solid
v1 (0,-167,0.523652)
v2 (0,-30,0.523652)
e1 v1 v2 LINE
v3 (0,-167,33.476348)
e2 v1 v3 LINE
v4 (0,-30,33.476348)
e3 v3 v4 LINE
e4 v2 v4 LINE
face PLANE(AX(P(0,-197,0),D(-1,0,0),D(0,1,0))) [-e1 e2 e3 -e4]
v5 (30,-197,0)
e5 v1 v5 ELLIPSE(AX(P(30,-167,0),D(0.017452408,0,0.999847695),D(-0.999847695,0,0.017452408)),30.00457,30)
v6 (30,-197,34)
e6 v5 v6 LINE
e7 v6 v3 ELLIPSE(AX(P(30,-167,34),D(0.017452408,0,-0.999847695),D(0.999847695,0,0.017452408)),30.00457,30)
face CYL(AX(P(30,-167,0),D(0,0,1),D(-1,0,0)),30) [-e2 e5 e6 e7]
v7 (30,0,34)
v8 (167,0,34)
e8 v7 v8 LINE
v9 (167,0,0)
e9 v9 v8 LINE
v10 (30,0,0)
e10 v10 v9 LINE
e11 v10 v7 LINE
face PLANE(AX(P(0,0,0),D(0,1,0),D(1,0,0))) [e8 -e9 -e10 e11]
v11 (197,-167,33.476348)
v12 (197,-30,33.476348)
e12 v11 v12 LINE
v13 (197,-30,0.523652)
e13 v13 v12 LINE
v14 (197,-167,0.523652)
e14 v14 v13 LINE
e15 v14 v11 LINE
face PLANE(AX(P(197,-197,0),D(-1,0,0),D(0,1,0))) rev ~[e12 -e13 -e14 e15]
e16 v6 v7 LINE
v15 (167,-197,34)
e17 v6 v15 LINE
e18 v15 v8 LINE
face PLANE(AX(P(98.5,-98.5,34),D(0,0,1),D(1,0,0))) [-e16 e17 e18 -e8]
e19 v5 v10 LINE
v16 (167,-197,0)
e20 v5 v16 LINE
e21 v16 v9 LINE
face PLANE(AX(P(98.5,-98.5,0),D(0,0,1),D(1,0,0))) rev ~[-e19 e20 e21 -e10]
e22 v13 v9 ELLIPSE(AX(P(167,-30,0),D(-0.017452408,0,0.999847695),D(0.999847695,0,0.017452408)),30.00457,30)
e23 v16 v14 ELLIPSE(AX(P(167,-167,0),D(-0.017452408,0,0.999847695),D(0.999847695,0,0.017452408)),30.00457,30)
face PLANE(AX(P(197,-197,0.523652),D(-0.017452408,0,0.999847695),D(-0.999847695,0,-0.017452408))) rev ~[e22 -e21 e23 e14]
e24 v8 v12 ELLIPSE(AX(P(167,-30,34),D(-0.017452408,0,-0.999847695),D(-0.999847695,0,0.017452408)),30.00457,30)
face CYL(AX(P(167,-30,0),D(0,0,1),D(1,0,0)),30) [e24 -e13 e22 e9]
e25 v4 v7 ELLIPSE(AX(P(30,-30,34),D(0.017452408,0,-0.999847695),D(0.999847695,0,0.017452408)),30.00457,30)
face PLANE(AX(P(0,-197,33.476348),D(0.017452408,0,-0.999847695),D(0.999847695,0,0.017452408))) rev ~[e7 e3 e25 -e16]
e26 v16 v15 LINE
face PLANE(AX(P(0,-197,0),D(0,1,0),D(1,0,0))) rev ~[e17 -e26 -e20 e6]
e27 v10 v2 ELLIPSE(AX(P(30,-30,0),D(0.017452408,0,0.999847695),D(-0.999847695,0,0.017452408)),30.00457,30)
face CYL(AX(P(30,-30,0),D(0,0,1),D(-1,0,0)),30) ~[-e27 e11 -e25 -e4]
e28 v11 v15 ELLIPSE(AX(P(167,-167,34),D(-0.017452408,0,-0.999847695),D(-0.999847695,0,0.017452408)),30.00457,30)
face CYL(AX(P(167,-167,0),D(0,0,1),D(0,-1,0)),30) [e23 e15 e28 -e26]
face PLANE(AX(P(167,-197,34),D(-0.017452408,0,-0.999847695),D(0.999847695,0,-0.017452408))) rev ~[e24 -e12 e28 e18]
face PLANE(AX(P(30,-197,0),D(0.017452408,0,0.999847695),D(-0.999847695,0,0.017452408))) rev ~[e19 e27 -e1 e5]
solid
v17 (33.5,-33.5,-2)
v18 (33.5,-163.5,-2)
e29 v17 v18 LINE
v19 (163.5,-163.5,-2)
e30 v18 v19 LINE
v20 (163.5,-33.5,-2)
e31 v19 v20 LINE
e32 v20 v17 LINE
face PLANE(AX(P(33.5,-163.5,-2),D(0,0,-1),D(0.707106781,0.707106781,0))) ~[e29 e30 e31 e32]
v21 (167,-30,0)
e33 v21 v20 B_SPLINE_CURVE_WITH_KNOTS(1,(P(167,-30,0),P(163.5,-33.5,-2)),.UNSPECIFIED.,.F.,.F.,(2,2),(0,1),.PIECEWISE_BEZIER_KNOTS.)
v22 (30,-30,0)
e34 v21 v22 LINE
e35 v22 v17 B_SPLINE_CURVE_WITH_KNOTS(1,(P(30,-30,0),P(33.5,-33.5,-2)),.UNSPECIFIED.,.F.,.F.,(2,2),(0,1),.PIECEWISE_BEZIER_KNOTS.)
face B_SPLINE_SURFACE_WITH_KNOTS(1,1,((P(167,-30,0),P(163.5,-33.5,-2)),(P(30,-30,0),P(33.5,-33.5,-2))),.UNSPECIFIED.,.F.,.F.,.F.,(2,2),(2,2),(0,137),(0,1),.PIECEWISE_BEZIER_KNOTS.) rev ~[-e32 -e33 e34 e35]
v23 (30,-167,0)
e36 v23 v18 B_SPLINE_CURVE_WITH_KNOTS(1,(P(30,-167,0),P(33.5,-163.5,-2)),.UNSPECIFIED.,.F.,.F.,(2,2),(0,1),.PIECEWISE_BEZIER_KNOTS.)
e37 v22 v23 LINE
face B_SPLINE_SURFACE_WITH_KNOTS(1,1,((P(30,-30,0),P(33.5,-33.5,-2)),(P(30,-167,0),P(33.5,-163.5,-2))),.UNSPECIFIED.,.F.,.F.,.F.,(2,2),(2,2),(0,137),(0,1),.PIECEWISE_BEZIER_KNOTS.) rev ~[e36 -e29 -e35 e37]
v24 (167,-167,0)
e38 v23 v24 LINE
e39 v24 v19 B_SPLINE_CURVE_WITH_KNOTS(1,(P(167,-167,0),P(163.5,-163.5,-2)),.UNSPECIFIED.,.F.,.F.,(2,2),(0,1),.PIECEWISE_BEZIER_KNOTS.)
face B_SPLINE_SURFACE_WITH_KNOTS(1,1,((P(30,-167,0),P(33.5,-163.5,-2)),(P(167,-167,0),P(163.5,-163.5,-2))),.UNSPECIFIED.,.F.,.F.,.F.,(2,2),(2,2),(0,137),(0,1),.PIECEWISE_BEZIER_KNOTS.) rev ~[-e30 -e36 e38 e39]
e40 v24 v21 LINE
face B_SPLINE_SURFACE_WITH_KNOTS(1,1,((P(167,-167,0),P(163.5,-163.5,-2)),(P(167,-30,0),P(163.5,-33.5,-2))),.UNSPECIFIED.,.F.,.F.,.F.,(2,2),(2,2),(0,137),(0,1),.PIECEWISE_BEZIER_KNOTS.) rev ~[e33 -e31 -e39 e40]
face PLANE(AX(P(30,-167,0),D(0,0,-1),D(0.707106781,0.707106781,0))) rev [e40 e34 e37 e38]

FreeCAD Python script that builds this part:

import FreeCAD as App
import Part
import Sketcher
Q = App.Units.Quantity


def edges_at(feature, points):
    """Names of the edges that pass closest to the given points."""
    edges = feature.Shape.Edges
    near = lambda p: min(range(len(edges)), key=lambda i: edges[i].distToShape(Part.Vertex(*p))[0])
    return sorted({f"Edge{near(p) + 1}" for p in points})

doc = App.newDocument("Part")
body = doc.addObject("PartDesign::Body", "Body")

sketch1 = body.newObject("Sketcher::SketchObject", "Sketch")
sketch1.AttachmentSupport = (doc.getObject("XY_Plane"), [""])
sketch1.MapMode = "FlatFace"
sketch1.addGeometry(Part.LineSegment(App.Vector(0, 0, 0), App.Vector(0, -197, 0)), False)
sketch1.addGeometry(Part.LineSegment(App.Vector(0, -197, 0), App.Vector(197, -197, 0)), False)
sketch1.addGeometry(Part.LineSegment(App.Vector(197, -197, 0), App.Vector(197, 0, 0)), False)
sketch1.addGeometry(Part.LineSegment(App.Vector(197, 0, 0), App.Vector(0, 0, 0)), False)
sketch1.addConstraint(Sketcher.Constraint("Coincident", 0, 2, 1, 1))
sketch1.addConstraint(Sketcher.Constraint("Coincident", 1, 2, 2, 1))
sketch1.addConstraint(Sketcher.Constraint("Coincident", 2, 2, 3, 1))
sketch1.addConstraint(Sketcher.Constraint("Coincident", 3, 2, 0, 1))
sketch1.addConstraint(Sketcher.Constraint("Vertical", 0))
sketch1.addConstraint(Sketcher.Constraint("Horizontal", 1))
sketch1.addConstraint(Sketcher.Constraint("Vertical", 2))
sketch1.addConstraint(Sketcher.Constraint("Horizontal", 3))
sketch1.addConstraint(Sketcher.Constraint("Coincident", 3, 2, -1, 1))
sketch1.addConstraint(Sketcher.Constraint("Equal", 3, 0))
sketch1.addConstraint(Sketcher.Constraint("DistanceX", 1, 1, 1, 2, Q("197 mm")))
pad1 = body.newObject("PartDesign::Pad", "Pad")
pad1.Profile = sketch1
pad1.Length = 34
doc.recompute()

fillet = body.newObject("PartDesign::Fillet", "Fillet")
fillet.Base = (pad1, edges_at(pad1, [
    (197, -197, 17),
    (197, 0, 17),
    (0, 0, 17),
    (0, -197, 17),
]))
fillet.Radius = 30

sketch2 = body.newObject("Sketcher::SketchObject", "Sketch001")
sketch2.AttachmentSupport = (doc.getObject("XZ_Plane"), [""])
sketch2.MapMode = "FlatFace"
sketch2.AttachmentOffset = App.Placement(App.Vector(0, 0, 197), App.Rotation())
sketch2.addGeometry(Part.LineSegment(App.Vector(197, 34, 0), App.Vector(167, 34, 0)), False)
sketch2.addGeometry(Part.LineSegment(App.Vector(167, 34, 0), App.Vector(197, 33.5, 0)), False)
sketch2.addGeometry(Part.LineSegment(App.Vector(197, 33.5, 0), App.Vector(197, 34, 0)), False)
sketch2.addGeometry(Part.LineSegment(App.Vector(0, 0.5, 0), App.Vector(0, 0, 0)), False)
sketch2.addGeometry(Part.LineSegment(App.Vector(0, 0, 0), App.Vector(30, 0, 0)), False)
sketch2.addGeometry(Part.LineSegment(App.Vector(30, 0, 0), App.Vector(0, 0.5, 0)), False)
sketch2.addGeometry(Part.LineSegment(App.Vector(197, 0.5, 0), App.Vector(167, 0, 0)), False)
sketch2.addGeometry(Part.LineSegment(App.Vector(167, 0, 0), App.Vector(197, 0, 0)), False)
sketch2.addGeometry(Part.LineSegment(App.Vector(197, 0, 0), App.Vector(197, 0.5, 0)), False)
sketch2.addGeometry(Part.LineSegment(App.Vector(30, 34, 0), App.Vector(0, 34, 0)), False)
sketch2.addGeometry(Part.LineSegment(App.Vector(0, 34, 0), App.Vector(0, 33.5, 0)), False)
sketch2.addGeometry(Part.LineSegment(App.Vector(0, 33.5, 0), App.Vector(30, 34, 0)), False)
sketch2.addConstraint(Sketcher.Constraint("Coincident", 0, 2, 1, 1))
sketch2.addConstraint(Sketcher.Constraint("Coincident", 1, 2, 2, 1))
sketch2.addConstraint(Sketcher.Constraint("Coincident", 2, 2, 0, 1))
sketch2.addConstraint(Sketcher.Constraint("Coincident", 3, 2, 4, 1))
sketch2.addConstraint(Sketcher.Constraint("Coincident", 4, 2, 5, 1))
sketch2.addConstraint(Sketcher.Constraint("Coincident", 5, 2, 3, 1))
sketch2.addConstraint(Sketcher.Constraint("Coincident", 6, 2, 7, 1))
sketch2.addConstraint(Sketcher.Constraint("Coincident", 7, 2, 8, 1))
sketch2.addConstraint(Sketcher.Constraint("Coincident", 8, 2, 6, 1))
sketch2.addConstraint(Sketcher.Constraint("Coincident", 9, 2, 10, 1))
sketch2.addConstraint(Sketcher.Constraint("Coincident", 10, 2, 11, 1))
sketch2.addConstraint(Sketcher.Constraint("Coincident", 11, 2, 9, 1))
sketch2.addConstraint(Sketcher.Constraint("Horizontal", 0))
sketch2.addConstraint(Sketcher.Constraint("Vertical", 2))
sketch2.addConstraint(Sketcher.Constraint("Vertical", 3))
sketch2.addConstraint(Sketcher.Constraint("Horizontal", 4))
sketch2.addConstraint(Sketcher.Constraint("Horizontal", 7))
sketch2.addConstraint(Sketcher.Constraint("Vertical", 8))
sketch2.addConstraint(Sketcher.Constraint("Horizontal", 9))
sketch2.addConstraint(Sketcher.Constraint("Vertical", 10))
sketch2.addConstraint(Sketcher.Constraint("Coincident", 3, 2, -1, 1))
sketch2.addConstraint(Sketcher.Constraint("PointOnObject", 6, 2, -1))
sketch2.addConstraint(Sketcher.Constraint("PointOnObject", 9, 2, -2))
sketch2.addConstraint(Sketcher.Constraint("Parallel", 1, 5))
sketch2.addConstraint(Sketcher.Constraint("Parallel", 6, 11))
sketch2.addConstraint(Sketcher.Constraint("Horizontal", 5, 2, 8, 2))
sketch2.addConstraint(Sketcher.Constraint("Horizontal", 2, 2, 9, 2))
sketch2.addConstraint(Sketcher.Constraint("Horizontal", 1, 2, 10, 2))
sketch2.addConstraint(Sketcher.Constraint("Vertical", 0, 2, 6, 2))
sketch2.addConstraint(Sketcher.Constraint("Vertical", 2, 2, 7, 2))
sketch2.addConstraint(Sketcher.Constraint("Vertical", 4, 2, 11, 2))
sketch2.addConstraint(Sketcher.Constraint("DistanceX", 0, 2, 0, 1, Q("30 mm")))
sketch2.addConstraint(Sketcher.Constraint("Angle", 1, Q("-1 deg")))
sketch2.addConstraint(Sketcher.Constraint("DistanceX", -1, 1, 0, 2, Q("167 mm")))
sketch2.addConstraint(Sketcher.Constraint("DistanceY", -1, 1, 0, 2, Q("34 mm")))
pocket1 = body.newObject("PartDesign::Pocket", "Pocket")
pocket1.Profile = sketch2
pocket1.Length = 197
body2 = doc.addObject("PartDesign::Body", "Body001")

sketch3 = body2.newObject("Sketcher::SketchObject", "Sketch002")
sketch3.AttachmentSupport = (doc.getObject("XY_Plane001"), [""])
sketch3.MapMode = "FlatFace"
sketch3.addGeometry(Part.LineSegment(App.Vector(30, -167, 0), App.Vector(167, -167, 0)), False)
sketch3.addGeometry(Part.LineSegment(App.Vector(167, -167, 0), App.Vector(167, -30, 0)), False)
sketch3.addGeometry(Part.LineSegment(App.Vector(167, -30, 0), App.Vector(30, -30, 0)), False)
sketch3.addGeometry(Part.LineSegment(App.Vector(30, -30, 0), App.Vector(30, -167, 0)), False)
sketch3.addConstraint(Sketcher.Constraint("Coincident", 0, 2, 1, 1))
sketch3.addConstraint(Sketcher.Constraint("Coincident", 1, 2, 2, 1))
sketch3.addConstraint(Sketcher.Constraint("Coincident", 2, 2, 3, 1))
sketch3.addConstraint(Sketcher.Constraint("Coincident", 3, 2, 0, 1))
sketch3.addConstraint(Sketcher.Constraint("Horizontal", 0))
sketch3.addConstraint(Sketcher.Constraint("Vertical", 1))
sketch3.addConstraint(Sketcher.Constraint("Horizontal", 2))
sketch3.addConstraint(Sketcher.Constraint("Vertical", 3))
sketch3.addConstraint(Sketcher.Constraint("Equal", 2, 1))
sketch3.addConstraint(Sketcher.Constraint("DistanceX", 0, 1, 0, 2, Q("137 mm")))
sketch3.addConstraint(Sketcher.Constraint("DistanceX", -1, 1, 0, 2, Q("167 mm")))
sketch3.addConstraint(Sketcher.Constraint("DistanceY", 0, 2, -1, 1, Q("167 mm")))

sketch4 = body2.newObject("Sketcher::SketchObject", "Sketch003")
sketch4.AttachmentSupport = (doc.getObject("XY_Plane001"), [""])
sketch4.MapMode = "FlatFace"
sketch4.AttachmentOffset = App.Placement(App.Vector(0, 0, -2), App.Rotation())
sketch4.addGeometry(Part.LineSegment(App.Vector(34, -164, 0), App.Vector(164, -164, 0)), False)
sketch4.addGeometry(Part.LineSegment(App.Vector(164, -164, 0), App.Vector(164, -34, 0)), False)
sketch4.addGeometry(Part.LineSegment(App.Vector(164, -34, 0), App.Vector(34, -34, 0)), False)
sketch4.addGeometry(Part.LineSegment(App.Vector(34, -34, 0), App.Vector(34, -164, 0)), False)
sketch4.addConstraint(Sketcher.Constraint("Coincident", 0, 2, 1, 1))
sketch4.addConstraint(Sketcher.Constraint("Coincident", 1, 2, 2, 1))
sketch4.addConstraint(Sketcher.Constraint("Coincident", 2, 2, 3, 1))
sketch4.addConstraint(Sketcher.Constraint("Coincident", 3, 2, 0, 1))
sketch4.addConstraint(Sketcher.Constraint("Horizontal", 0))
sketch4.addConstraint(Sketcher.Constraint("Vertical", 1))
sketch4.addConstraint(Sketcher.Constraint("Horizontal", 2))
sketch4.addConstraint(Sketcher.Constraint("Vertical", 3))
sketch4.addConstraint(Sketcher.Constraint("Equal", 2, 1))
sketch4.addConstraint(Sketcher.Constraint("DistanceX", 0, 1, 0, 2, Q("130 mm")))
sketch4.addConstraint(Sketcher.Constraint("DistanceX", -1, 1, 0, 2, Q("163.5 mm")))
sketch4.addConstraint(Sketcher.Constraint("DistanceY", 0, 2, -1, 1, Q("163.5 mm")))

additiveloft = body2.newObject("PartDesign::AdditiveLoft", "AdditiveLoft")
additiveloft.Profile = sketch3
additiveloft.Sections = [sketch4]

doc.recompute()
